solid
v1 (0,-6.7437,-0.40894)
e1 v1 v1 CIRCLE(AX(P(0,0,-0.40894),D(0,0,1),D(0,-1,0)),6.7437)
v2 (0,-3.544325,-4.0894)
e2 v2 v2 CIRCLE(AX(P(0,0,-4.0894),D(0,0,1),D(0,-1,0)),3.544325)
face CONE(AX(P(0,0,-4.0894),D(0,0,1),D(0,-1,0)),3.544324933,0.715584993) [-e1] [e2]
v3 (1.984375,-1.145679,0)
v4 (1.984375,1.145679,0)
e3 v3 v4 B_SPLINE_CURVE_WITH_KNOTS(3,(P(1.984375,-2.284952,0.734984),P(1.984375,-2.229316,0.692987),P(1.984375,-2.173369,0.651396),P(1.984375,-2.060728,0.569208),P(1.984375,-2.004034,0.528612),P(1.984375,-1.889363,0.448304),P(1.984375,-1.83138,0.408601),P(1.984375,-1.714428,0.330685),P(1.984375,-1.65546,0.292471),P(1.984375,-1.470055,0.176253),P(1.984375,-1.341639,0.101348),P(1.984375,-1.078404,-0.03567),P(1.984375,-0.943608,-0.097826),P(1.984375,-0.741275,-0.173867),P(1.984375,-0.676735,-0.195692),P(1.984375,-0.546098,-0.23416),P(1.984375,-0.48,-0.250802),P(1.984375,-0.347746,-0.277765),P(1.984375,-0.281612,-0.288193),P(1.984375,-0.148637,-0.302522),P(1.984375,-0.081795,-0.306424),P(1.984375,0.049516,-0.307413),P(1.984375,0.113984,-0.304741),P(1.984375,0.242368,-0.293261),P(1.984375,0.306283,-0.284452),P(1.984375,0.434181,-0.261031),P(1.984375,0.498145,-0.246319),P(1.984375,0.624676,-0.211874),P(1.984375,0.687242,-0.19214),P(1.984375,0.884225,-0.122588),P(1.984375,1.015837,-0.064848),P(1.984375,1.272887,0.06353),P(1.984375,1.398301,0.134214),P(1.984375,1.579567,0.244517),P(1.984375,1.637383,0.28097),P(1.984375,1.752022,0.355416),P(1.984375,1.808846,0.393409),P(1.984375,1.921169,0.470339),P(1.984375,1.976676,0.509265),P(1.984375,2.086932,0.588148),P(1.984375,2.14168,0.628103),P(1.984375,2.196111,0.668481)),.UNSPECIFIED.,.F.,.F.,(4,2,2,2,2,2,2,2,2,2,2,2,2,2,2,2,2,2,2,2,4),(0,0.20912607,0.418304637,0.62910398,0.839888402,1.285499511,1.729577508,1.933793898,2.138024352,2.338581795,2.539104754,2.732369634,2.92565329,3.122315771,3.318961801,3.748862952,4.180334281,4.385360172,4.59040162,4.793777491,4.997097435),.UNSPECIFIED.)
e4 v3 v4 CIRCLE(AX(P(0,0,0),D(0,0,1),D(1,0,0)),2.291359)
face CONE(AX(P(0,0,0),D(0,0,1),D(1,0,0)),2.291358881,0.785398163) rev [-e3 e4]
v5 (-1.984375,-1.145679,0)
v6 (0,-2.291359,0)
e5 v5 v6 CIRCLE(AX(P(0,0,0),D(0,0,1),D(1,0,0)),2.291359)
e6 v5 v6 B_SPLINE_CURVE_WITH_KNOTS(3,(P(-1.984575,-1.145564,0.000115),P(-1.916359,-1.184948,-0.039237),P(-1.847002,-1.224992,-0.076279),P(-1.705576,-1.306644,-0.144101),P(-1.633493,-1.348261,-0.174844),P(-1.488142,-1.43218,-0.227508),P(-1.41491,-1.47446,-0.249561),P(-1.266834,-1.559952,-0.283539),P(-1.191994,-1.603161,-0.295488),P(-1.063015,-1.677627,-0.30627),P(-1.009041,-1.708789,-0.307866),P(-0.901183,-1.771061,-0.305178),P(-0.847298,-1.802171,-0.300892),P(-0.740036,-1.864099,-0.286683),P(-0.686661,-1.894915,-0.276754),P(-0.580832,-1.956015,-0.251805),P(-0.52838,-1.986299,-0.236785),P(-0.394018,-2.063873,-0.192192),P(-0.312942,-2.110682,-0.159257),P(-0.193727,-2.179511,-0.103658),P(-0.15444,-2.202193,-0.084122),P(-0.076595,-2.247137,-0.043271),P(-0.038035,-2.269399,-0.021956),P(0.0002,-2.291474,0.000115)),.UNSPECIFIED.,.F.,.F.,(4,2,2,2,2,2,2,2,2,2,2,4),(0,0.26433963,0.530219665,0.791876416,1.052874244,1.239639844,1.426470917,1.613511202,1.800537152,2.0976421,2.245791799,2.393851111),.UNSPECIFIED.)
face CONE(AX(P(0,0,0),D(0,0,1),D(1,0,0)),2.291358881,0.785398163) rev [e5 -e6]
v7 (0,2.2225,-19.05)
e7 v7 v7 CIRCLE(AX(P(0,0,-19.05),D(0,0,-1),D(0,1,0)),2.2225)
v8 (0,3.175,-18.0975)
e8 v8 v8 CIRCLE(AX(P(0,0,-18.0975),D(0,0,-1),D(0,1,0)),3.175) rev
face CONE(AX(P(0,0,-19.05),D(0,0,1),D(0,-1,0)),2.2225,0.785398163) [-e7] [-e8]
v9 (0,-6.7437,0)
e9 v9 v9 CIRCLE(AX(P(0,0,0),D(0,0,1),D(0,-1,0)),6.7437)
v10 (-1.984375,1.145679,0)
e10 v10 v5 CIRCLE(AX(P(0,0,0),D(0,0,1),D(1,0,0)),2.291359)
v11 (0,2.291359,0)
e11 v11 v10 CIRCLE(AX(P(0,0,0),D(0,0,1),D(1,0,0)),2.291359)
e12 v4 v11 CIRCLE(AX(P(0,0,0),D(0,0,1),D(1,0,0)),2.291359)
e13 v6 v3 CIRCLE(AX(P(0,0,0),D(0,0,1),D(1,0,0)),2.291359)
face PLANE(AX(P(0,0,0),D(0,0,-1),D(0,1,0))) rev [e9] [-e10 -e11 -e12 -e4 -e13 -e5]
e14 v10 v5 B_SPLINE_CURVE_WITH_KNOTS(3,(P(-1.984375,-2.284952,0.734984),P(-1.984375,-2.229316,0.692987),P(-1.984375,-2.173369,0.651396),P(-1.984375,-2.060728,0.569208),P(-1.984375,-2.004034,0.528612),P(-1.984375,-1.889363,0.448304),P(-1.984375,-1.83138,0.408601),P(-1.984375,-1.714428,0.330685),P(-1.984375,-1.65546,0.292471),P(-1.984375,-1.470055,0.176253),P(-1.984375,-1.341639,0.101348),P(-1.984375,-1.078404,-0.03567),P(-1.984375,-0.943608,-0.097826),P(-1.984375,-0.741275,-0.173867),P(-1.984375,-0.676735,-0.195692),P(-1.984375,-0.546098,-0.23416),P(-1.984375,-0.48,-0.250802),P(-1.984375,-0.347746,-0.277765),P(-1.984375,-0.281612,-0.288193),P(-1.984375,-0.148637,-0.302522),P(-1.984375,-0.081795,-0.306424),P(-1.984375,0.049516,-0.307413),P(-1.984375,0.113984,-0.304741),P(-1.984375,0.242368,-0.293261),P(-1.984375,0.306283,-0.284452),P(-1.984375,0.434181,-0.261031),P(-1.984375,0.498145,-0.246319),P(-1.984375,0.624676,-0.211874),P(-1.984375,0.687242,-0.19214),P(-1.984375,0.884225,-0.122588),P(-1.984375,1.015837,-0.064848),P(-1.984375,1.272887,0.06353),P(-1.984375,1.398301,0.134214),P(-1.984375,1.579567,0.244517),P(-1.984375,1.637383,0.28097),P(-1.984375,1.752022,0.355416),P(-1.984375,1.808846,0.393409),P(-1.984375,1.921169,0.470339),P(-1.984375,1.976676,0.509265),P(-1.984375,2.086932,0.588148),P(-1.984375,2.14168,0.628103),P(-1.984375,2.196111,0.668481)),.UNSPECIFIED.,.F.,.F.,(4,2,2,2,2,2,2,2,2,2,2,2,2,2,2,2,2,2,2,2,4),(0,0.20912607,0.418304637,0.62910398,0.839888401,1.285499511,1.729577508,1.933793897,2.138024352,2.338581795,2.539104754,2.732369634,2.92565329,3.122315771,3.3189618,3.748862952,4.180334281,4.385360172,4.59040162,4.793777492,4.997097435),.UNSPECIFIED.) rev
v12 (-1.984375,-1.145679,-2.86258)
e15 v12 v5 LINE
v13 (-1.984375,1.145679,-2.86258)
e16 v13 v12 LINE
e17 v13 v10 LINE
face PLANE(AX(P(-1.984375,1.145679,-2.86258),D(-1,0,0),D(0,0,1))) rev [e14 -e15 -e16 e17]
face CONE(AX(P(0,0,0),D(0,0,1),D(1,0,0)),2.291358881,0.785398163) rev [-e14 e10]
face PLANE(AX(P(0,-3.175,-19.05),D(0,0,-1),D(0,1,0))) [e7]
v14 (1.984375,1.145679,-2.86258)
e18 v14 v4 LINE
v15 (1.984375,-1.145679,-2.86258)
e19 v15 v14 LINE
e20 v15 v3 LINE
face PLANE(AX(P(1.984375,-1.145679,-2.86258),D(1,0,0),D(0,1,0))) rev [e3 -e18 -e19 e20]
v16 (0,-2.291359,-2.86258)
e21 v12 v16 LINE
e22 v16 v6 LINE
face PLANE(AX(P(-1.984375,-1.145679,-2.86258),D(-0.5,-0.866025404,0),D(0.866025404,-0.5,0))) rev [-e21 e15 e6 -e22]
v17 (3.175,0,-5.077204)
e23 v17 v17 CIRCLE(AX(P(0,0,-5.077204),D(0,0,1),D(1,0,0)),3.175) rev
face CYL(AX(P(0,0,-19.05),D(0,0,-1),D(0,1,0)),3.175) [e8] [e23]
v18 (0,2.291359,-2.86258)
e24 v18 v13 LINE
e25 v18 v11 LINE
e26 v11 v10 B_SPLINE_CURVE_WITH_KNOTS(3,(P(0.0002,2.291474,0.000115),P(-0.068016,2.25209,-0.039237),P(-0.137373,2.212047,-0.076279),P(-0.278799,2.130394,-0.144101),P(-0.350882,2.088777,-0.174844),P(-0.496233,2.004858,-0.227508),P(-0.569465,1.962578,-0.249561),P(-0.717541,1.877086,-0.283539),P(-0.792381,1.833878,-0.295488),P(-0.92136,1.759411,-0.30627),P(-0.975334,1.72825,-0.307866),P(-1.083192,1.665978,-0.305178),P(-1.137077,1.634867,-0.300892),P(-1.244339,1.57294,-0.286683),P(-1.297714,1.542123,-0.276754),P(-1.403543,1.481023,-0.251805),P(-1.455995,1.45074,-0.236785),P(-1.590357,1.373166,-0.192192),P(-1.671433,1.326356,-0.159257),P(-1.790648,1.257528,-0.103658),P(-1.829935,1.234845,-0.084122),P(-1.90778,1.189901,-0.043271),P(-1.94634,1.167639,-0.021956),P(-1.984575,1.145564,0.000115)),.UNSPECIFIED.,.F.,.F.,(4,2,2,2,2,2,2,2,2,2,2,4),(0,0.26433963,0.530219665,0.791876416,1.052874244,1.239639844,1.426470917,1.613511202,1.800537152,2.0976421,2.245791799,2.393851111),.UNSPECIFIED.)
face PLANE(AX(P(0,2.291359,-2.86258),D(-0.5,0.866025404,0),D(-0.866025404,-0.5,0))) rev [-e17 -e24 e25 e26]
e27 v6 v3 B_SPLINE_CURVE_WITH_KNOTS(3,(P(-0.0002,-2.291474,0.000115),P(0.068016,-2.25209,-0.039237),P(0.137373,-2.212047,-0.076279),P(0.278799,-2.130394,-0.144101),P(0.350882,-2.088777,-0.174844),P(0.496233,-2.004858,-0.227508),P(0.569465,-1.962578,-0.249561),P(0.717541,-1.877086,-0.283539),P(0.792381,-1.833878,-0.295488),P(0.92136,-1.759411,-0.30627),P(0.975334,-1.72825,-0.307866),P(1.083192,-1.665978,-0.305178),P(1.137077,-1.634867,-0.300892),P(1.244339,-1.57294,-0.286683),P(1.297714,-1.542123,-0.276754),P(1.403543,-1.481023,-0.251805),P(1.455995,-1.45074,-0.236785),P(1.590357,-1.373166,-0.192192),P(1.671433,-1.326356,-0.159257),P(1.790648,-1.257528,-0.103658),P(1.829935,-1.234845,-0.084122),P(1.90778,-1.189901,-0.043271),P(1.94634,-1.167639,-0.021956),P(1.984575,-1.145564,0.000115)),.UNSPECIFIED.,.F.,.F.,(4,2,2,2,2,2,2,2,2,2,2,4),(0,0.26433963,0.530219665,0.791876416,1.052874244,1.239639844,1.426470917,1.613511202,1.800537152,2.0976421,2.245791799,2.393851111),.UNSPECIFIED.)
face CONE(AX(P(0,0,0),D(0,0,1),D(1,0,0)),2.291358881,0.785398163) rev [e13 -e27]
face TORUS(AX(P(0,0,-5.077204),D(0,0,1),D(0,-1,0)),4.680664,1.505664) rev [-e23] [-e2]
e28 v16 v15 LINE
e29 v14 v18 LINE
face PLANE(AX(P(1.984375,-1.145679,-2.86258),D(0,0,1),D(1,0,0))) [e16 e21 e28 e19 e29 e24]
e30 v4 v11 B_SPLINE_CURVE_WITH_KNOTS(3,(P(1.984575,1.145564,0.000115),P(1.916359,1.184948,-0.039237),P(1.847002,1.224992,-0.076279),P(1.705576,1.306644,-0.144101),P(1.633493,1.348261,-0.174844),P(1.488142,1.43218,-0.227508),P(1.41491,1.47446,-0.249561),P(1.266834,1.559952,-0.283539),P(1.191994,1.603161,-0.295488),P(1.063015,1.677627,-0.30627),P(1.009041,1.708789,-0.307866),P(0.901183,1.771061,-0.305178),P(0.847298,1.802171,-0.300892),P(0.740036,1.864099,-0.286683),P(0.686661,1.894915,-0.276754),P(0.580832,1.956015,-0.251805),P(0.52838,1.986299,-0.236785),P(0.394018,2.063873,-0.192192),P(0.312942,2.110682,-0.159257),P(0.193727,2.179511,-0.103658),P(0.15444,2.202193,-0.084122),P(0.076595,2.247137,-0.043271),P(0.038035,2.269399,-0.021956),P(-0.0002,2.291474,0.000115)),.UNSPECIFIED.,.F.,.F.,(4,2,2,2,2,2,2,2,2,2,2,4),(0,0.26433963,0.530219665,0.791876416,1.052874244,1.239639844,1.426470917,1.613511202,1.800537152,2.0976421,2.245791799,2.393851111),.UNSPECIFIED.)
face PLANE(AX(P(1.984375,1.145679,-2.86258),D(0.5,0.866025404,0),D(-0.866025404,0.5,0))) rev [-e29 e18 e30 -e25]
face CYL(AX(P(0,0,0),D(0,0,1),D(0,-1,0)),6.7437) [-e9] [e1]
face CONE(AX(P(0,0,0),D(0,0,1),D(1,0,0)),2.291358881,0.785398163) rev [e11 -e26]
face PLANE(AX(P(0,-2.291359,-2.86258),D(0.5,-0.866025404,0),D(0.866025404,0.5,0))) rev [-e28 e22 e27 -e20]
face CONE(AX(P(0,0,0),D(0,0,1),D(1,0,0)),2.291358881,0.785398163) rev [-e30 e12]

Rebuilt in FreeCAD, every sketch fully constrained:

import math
import FreeCAD as App
import Part
import Sketcher
from FreeCAD import Vector
Q = App.Units.Quantity


def edges_at(feature, points):
    """Names of the edges that pass closest to the given points."""
    edges = feature.Shape.Edges
    near = lambda p: min(range(len(edges)), key=lambda i: edges[i].distToShape(Part.Vertex(*p))[0])
    return sorted({f"Edge{near(p) + 1}" for p in points})

doc = App.newDocument("Part")
body = doc.addObject("PartDesign::Body", "Body")

# Sketch on YZ plane
sketch1 = doc.addObject("Sketcher::SketchObject", "Sketch")
body.addObject(sketch1)
sketch1.AttachmentSupport = (doc.YZ_Plane, [""])
sketch1.MapMode = "FlatFace"
sketch1.addGeometry([
    Part.LineSegment(Vector(3.2, 0, 0), Vector(0, 0, 0)),
    Part.LineSegment(Vector(0, 0, 0), Vector(0, -19.1, 0)),
    Part.LineSegment(Vector(0, -19.1, 0), Vector(3.2, -19.1, 0)),
    Part.LineSegment(Vector(3.2, -19.1, 0), Vector(3.2, 0, 0)),
], False)
sketch1.addConstraint([
    Sketcher.Constraint("Coincident", 0, 2, 1, 1),
    Sketcher.Constraint("Coincident", 1, 2, 2, 1),
    Sketcher.Constraint("Coincident", 2, 2, 3, 1),
    Sketcher.Constraint("Coincident", 3, 2, 0, 1),
    Sketcher.Constraint("Horizontal", 0),
    Sketcher.Constraint("Vertical", 1),
    Sketcher.Constraint("Horizontal", 2),
    Sketcher.Constraint("Vertical", 3),
    Sketcher.Constraint("Coincident", 0, 2, -1, 1),
    Sketcher.Constraint("DistanceY", 1, 2, 1, 1, Q("0.75 in")),
    Sketcher.Constraint("DistanceX", 0, 2, 0, 1, Q("0.125 in")),
])
revolution = doc.addObject("PartDesign::Revolution", "Revolution")
body.addObject(revolution)
revolution.Profile = sketch1
revolution.ReferenceAxis = (sketch1, ["V_Axis"])
revolution.Angle = 360
doc.recompute()

chamfer = doc.addObject("PartDesign::Chamfer", "Chamfer")
body.addObject(chamfer)
chamfer.Base = (revolution, edges_at(revolution, [(0, -3.175, -19.05)]))
chamfer.Size = Q("0.0375 in")
body2 = doc.addObject("PartDesign::Body", "Body001")

# Sketch on YZ plane
sketch2 = doc.addObject("Sketcher::SketchObject", "Sketch001")
body2.addObject(sketch2)
sketch2.AttachmentSupport = (doc.getObject("YZ_Plane001"), [""])
sketch2.MapMode = "FlatFace"
sketch2.addGeometry([
    Part.LineSegment(Vector(6.74, -0.41, 0), Vector(6.74, 0, 0)),  # 0
    Part.LineSegment(Vector(6.74, 0, 0), Vector(0, 0, 0)),  # 1
    Part.LineSegment(Vector(0, 0, 0), Vector(0, -5.08, 0)),  # 2
    Part.LineSegment(Vector(0, -5.08, 0), Vector(3.17, -5.08, 0)),  # 3
    Part.ArcOfCircle(Part.Circle(Vector(4.68, -5.08, 0), Vector(0, 0, 1), 1.51), math.radians(139), math.radians(180)),  # 4
    Part.LineSegment(Vector(3.54, -4.09, 0), Vector(6.74, -0.41, 0)),  # 5
], False)
sketch2.addConstraint([
    Sketcher.Constraint("Coincident", 0, 2, 1, 1),
    Sketcher.Constraint("Coincident", 1, 2, 2, 1),
    Sketcher.Constraint("Coincident", 2, 2, 3, 1),
    Sketcher.Constraint("Coincident", 3, 2, 4, 2),
    Sketcher.Constraint("Tangent", 4, 1, 5, 1),
    Sketcher.Constraint("Coincident", 5, 2, 0, 1),
    Sketcher.Constraint("Vertical", 0),
    Sketcher.Constraint("Horizontal", 1),
    Sketcher.Constraint("Vertical", 2),
    Sketcher.Constraint("Horizontal", 3),
    Sketcher.Constraint("Coincident", 1, 2, -1, 1),
    Sketcher.Constraint("Horizontal", 4, 3, 2, 2),
    Sketcher.Constraint("Angle", 5, Q("49 deg")),
    Sketcher.Constraint("DistanceX", 3, 1, 3, 2, Q("0.125 in")),
    Sketcher.Constraint("DistanceX", 1, 2, 1, 1, Q("0.2655 in")),
    Sketcher.Constraint("DistanceY", 0, 1, 0, 2, Q("0.0161 in")),
    Sketcher.Constraint("DistanceY", 4, 1, -1, 1, Q("0.161 in")),
])
revolution2 = doc.addObject("PartDesign::Revolution", "Revolution001")
body2.addObject(revolution2)
revolution2.Profile = sketch2
revolution2.ReferenceAxis = (sketch2, ["V_Axis"])
revolution2.Angle = 360

# Sketch on YZ plane
sketch3 = doc.addObject("Sketcher::SketchObject", "Sketch002")
body2.addObject(sketch3)
sketch3.AttachmentSupport = (doc.getObject("YZ_Plane001"), [""])
sketch3.MapMode = "FlatFace"
sketch3.addGeometry([
    Part.LineSegment(Vector(0, -5.1, 0), Vector(-3.2, -5.1, 0)),
    Part.LineSegment(Vector(-3.2, -5.1, 0), Vector(0, -8.3, 0)),
    Part.LineSegment(Vector(0, -8.3, 0), Vector(0, -5.1, 0)),
], False)
sketch3.addConstraint([
    Sketcher.Constraint("Coincident", 0, 2, 1, 1),
    Sketcher.Constraint("Coincident", 1, 2, 2, 1),
    Sketcher.Constraint("Coincident", 2, 2, 0, 1),
    Sketcher.Constraint("Horizontal", 0),
    Sketcher.Constraint("Vertical", 2),
    Sketcher.Constraint("PointOnObject", 1, 2, -2),
    Sketcher.Constraint("Equal", 0, 2),
    Sketcher.Constraint("DistanceX", 0, 2, 0, 1, Q("0.125 in")),
    Sketcher.Constraint("DistanceY", 0, 2, -1, 1, Q("5.077204 mm")),
])
revolution3 = doc.addObject("PartDesign::Revolution", "Revolution002")
body2.addObject(revolution3)
revolution3.Profile = sketch3
revolution3.ReferenceAxis = (sketch3, ["V_Axis"])
revolution3.Angle = 360
doc.recompute()

boolean = doc.addObject("PartDesign::Boolean", "Boolean")
body2.addObject(boolean)
boolean.Type = "Fuse"
boolean.addObjects([body])

# Sketch on XY plane
sketch4 = doc.addObject("Sketcher::SketchObject", "Sketch003")
body2.addObject(sketch4)
sketch4.AttachmentSupport = (doc.getObject("XY_Plane001"), [""])
sketch4.MapMode = "FlatFace"
sketch4.addGeometry([
    Part.LineSegment(Vector(2, -1.1, 0), Vector(2, 1.1, 0)),  # 0
    Part.LineSegment(Vector(2, 1.1, 0), Vector(0, 2.3, 0)),  # 1
    Part.LineSegment(Vector(0, 2.3, 0), Vector(-2, 1.1, 0)),  # 2
    Part.LineSegment(Vector(-2, 1.1, 0), Vector(-2, -1.1, 0)),  # 3
    Part.LineSegment(Vector(-2, -1.1, 0), Vector(0, -2.3, 0)),  # 4
    Part.LineSegment(Vector(0, -2.3, 0), Vector(2, -1.1, 0)),  # 5
], False)
sketch4.addConstraint([
    Sketcher.Constraint("Coincident", 0, 2, 1, 1),
    Sketcher.Constraint("Coincident", 1, 2, 2, 1),
    Sketcher.Constraint("Coincident", 2, 2, 3, 1),
    Sketcher.Constraint("Coincident", 3, 2, 4, 1),
    Sketcher.Constraint("Coincident", 4, 2, 5, 1),
    Sketcher.Constraint("Coincident", 5, 2, 0, 1),
    Sketcher.Constraint("Vertical", 0),
    Sketcher.Constraint("Vertical", 3),
    Sketcher.Constraint("Symmetric", 0, 2, 3, 2, -1, 1),
    Sketcher.Constraint("Symmetric", 1, 2, 4, 2, -1, 1),
    Sketcher.Constraint("PointOnObject", 1, 2, -2),
    Sketcher.Constraint("Parallel", 2, 5),
    Sketcher.Constraint("Horizontal", 0, 2, 2, 2),
    Sketcher.Constraint("Angle", 1, Q("150 deg")),
    Sketcher.Constraint("DistanceX", -1, 1, 0, 2, Q("0.078125 in")),
    Sketcher.Constraint("DistanceY", 0, 1, 0, 2, Q("2.291359 mm")),
])
pocket1 = doc.addObject("PartDesign::Pocket", "Pocket")
body2.addObject(pocket1)
pocket1.Profile = sketch4
pocket1.Length = Q("0.1127 in")

# Sketch on YZ plane
sketch5 = doc.addObject("Sketcher::SketchObject", "Sketch004")
body2.addObject(sketch5)
sketch5.AttachmentSupport = (doc.getObject("YZ_Plane001"), [""])
sketch5.MapMode = "FlatFace"
sketch5.addGeometry([
    Part.LineSegment(Vector(0, 0, 0), Vector(-2.3, 0, 0)),
    Part.LineSegment(Vector(-2.3, 0, 0), Vector(0, -2.3, 0)),
    Part.LineSegment(Vector(0, -2.3, 0), Vector(0, 0, 0)),
], False)
sketch5.addConstraint([
    Sketcher.Constraint("Coincident", 0, 2, 1, 1),
    Sketcher.Constraint("Coincident", 1, 2, 2, 1),
    Sketcher.Constraint("Coincident", 2, 2, 0, 1),
    Sketcher.Constraint("Horizontal", 0),
    Sketcher.Constraint("Vertical", 2),
    Sketcher.Constraint("Coincident", 2, 2, -1, 1),
    Sketcher.Constraint("Equal", 0, 2),
    Sketcher.Constraint("DistanceX", 0, 2, 0, 1, Q("2.291359 mm")),
])
groove = doc.addObject("PartDesign::Groove", "Groove")
body2.addObject(groove)
groove.Profile = sketch5
groove.ReferenceAxis = (sketch5, ["V_Axis"])
groove.Angle = 360

doc.recompute()
